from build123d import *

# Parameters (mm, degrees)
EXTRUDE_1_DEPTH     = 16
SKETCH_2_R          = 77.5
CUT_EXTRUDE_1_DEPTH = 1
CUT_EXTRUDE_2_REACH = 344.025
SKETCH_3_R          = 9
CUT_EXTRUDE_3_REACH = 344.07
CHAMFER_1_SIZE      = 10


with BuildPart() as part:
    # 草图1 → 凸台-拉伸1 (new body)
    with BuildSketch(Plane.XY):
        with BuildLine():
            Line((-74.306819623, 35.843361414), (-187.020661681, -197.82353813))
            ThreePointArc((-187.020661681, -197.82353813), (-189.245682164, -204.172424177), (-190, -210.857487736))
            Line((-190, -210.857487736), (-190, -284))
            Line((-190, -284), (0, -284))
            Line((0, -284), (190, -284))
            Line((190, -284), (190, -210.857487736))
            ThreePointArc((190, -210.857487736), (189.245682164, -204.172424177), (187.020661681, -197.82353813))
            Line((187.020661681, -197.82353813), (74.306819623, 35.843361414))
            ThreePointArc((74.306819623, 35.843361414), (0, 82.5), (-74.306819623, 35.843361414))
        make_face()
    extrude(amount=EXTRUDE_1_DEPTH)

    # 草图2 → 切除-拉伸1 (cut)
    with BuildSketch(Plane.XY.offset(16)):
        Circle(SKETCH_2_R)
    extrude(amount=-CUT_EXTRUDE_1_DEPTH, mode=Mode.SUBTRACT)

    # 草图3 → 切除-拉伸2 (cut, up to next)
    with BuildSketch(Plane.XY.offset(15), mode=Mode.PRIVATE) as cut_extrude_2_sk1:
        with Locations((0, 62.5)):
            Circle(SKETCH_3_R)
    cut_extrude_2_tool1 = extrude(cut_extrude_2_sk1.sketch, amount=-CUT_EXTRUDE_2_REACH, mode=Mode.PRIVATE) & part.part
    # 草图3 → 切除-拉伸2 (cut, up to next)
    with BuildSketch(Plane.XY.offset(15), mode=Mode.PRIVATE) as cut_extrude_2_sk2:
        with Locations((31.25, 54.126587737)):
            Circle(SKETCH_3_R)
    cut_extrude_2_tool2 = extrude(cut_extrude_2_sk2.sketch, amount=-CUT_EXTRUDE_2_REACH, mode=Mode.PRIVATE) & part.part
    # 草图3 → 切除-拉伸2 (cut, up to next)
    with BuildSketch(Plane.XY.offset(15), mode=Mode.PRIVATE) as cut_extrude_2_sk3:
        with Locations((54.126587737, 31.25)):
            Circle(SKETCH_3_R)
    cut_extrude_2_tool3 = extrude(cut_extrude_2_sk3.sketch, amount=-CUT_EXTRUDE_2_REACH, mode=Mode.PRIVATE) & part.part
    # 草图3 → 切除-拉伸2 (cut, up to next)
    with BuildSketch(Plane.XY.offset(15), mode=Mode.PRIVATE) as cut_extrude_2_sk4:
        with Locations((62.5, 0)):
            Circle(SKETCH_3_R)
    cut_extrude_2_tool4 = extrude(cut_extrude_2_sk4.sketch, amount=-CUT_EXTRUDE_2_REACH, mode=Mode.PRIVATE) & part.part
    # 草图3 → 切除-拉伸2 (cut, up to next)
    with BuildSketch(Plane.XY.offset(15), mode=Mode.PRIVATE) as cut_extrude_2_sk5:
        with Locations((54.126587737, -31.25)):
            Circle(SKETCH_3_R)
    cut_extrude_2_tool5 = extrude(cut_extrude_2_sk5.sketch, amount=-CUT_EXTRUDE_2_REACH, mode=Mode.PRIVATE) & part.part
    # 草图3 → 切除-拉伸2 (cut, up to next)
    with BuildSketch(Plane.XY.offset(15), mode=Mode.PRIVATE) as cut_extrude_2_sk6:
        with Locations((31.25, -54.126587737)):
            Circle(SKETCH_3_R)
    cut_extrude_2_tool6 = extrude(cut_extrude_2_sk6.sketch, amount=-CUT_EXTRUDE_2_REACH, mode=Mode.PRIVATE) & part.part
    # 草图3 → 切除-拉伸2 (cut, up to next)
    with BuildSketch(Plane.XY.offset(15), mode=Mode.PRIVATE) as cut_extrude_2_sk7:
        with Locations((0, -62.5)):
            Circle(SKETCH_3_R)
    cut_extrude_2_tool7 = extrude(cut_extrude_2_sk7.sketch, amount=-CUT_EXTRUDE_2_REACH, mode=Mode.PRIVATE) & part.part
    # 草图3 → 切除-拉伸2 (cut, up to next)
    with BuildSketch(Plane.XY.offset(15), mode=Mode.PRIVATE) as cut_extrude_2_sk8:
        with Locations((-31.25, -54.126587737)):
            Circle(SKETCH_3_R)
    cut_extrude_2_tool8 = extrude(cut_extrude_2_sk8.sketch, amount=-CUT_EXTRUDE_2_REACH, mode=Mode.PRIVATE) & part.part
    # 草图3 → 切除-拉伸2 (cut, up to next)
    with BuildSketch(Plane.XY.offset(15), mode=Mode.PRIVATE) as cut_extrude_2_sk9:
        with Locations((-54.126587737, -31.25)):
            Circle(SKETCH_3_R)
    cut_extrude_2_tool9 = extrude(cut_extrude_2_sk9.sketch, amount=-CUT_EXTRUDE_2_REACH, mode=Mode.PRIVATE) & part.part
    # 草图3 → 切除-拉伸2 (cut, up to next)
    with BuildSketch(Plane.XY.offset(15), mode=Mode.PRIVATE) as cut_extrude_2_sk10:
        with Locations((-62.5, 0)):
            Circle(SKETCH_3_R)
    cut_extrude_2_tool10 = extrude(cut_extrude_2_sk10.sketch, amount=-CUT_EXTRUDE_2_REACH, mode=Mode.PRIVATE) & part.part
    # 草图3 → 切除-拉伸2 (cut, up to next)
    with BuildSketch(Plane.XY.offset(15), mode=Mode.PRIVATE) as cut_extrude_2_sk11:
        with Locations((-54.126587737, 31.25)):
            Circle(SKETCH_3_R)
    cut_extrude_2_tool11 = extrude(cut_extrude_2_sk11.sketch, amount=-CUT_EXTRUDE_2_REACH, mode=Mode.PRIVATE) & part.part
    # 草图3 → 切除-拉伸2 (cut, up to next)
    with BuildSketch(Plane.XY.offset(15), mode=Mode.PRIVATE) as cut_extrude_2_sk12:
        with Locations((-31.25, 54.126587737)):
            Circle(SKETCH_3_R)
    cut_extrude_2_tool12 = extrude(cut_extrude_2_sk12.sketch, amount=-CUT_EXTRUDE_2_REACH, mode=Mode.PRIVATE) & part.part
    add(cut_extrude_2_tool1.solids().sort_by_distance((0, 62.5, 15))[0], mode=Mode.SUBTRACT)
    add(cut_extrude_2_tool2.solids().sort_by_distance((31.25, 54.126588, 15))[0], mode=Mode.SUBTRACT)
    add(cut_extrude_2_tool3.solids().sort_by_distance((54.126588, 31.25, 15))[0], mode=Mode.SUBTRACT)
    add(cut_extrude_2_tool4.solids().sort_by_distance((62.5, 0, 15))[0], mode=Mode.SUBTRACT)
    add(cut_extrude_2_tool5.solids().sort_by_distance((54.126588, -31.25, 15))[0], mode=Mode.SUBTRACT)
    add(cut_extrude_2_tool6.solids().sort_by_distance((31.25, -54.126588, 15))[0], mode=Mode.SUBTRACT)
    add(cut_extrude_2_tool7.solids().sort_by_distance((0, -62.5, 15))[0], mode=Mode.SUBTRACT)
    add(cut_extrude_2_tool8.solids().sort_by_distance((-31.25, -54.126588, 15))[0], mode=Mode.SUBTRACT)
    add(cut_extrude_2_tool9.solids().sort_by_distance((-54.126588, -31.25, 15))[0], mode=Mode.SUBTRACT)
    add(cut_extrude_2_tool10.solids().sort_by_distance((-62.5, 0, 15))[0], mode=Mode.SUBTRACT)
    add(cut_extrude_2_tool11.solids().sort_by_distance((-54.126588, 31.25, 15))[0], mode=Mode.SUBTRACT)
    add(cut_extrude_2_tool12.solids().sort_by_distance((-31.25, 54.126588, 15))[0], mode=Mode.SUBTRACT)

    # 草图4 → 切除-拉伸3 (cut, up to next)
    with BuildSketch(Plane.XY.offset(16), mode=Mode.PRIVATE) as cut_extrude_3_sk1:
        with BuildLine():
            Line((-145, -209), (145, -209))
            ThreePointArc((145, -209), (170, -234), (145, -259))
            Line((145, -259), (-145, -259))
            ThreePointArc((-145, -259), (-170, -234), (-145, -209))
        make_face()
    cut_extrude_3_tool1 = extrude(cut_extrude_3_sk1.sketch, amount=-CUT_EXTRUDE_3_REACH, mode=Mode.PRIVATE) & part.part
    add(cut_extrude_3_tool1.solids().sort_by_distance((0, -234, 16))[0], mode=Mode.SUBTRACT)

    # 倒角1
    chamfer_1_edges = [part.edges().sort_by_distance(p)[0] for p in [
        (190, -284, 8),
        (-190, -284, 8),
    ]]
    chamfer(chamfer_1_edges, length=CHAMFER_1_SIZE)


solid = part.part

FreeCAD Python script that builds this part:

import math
import FreeCAD as App
import Part
import Sketcher

V = App.Vector
Q = App.Units.Quantity


def edges_at(feature, points):
    """Names of the edges that pass closest to the given points."""
    edges = feature.Shape.Edges
    near = lambda p: min(range(len(edges)), key=lambda i: edges[i].distToShape(Part.Vertex(*p))[0])
    return sorted({f"Edge{near(p) + 1}" for p in points})

doc = App.newDocument("Part")
body = doc.addObject("PartDesign::Body", "Body")

sketch1 = body.newObject("Sketcher::SketchObject", "Sketch")
sketch1.AttachmentSupport = (doc.getObject("XY_Plane"), [""])
sketch1.MapMode = "FlatFace"
sketch1.addGeometry(Part.LineSegment(V(-74, 36, 0), V(-187, -198, 0)), False)
sketch1.addGeometry(Part.ArcOfCircle(Part.Circle(V(-160, -211, 0), V(0, 0, 1), 30), math.radians(154), math.radians(180)), False)
sketch1.addGeometry(Part.LineSegment(V(-190, -211, 0), V(-190, -284, 0)), False)
sketch1.addGeometry(Part.LineSegment(V(-190, -284, 0), V(190, -284, 0)), False)
sketch1.addGeometry(Part.LineSegment(V(190, -284, 0), V(190, -211, 0)), False)
sketch1.addGeometry(Part.ArcOfCircle(Part.Circle(V(160, -211, 0), V(0, 0, 1), 30), math.radians(0), math.radians(26)), False)
sketch1.addGeometry(Part.LineSegment(V(187, -198, 0), V(74, 36, 0)), False)
sketch1.addGeometry(Part.ArcOfCircle(Part.Circle(V(0, 0, 0), V(0, 0, 1), 82), math.radians(26), math.radians(154)), False)
sketch1.addConstraint(Sketcher.Constraint("Tangent", 0, 2, 1, 1))
sketch1.addConstraint(Sketcher.Constraint("Tangent", 1, 2, 2, 1))
sketch1.addConstraint(Sketcher.Constraint("Coincident", 2, 2, 3, 1))
sketch1.addConstraint(Sketcher.Constraint("Coincident", 3, 2, 4, 1))
sketch1.addConstraint(Sketcher.Constraint("Tangent", 4, 2, 5, 1))
sketch1.addConstraint(Sketcher.Constraint("Tangent", 5, 2, 6, 1))
sketch1.addConstraint(Sketcher.Constraint("Tangent", 6, 2, 7, 1))
sketch1.addConstraint(Sketcher.Constraint("Tangent", 7, 2, 0, 1))
sketch1.addConstraint(Sketcher.Constraint("Vertical", 2))
sketch1.addConstraint(Sketcher.Constraint("Horizontal", 3))
sketch1.addConstraint(Sketcher.Constraint("Vertical", 4))
sketch1.addConstraint(Sketcher.Constraint("Coincident", 7, 3, -1, 1))
sketch1.addConstraint(Sketcher.Constraint("Equal", 1, 5))
sketch1.addConstraint(Sketcher.Constraint("Symmetric", 1, 3, 5, 3, -2))
sketch1.addConstraint(Sketcher.Constraint("Radius", 1, Q("30 mm")))
sketch1.addConstraint(Sketcher.Constraint("Radius", 7, Q("82.5 mm")))
sketch1.addConstraint(Sketcher.Constraint("DistanceX", 3, 1, 3, 2, Q("380 mm")))
sketch1.addConstraint(Sketcher.Constraint("DistanceY", 2, 2, -1, 1, Q("284 mm")))
sketch1.addConstraint(Sketcher.Constraint("DistanceY", 5, 2, 6, 2, Q("233.6669 mm")))
pad1 = body.newObject("PartDesign::Pad", "Pad")
pad1.Profile = sketch1
pad1.Length = 16

sketch2 = body.newObject("Sketcher::SketchObject", "Sketch001")
sketch2.AttachmentSupport = (doc.getObject("XY_Plane"), [""])
sketch2.MapMode = "FlatFace"
sketch2.AttachmentOffset = App.Placement(V(0, 0, 16), App.Rotation())
sketch2.addGeometry(Part.Circle(V(0, 0, 0), V(0, 0, 1), 78), False)
sketch2.addConstraint(Sketcher.Constraint("Coincident", 0, 3, -1, 1))
sketch2.addConstraint(Sketcher.Constraint("Diameter", 0, Q("155 mm")))
pocket1 = body.newObject("PartDesign::Pocket", "Pocket")
pocket1.Profile = sketch2
pocket1.Length = 1

sketch3 = body.newObject("Sketcher::SketchObject", "Sketch002")
sketch3.AttachmentSupport = (doc.getObject("XY_Plane"), [""])
sketch3.MapMode = "FlatFace"
sketch3.AttachmentOffset = App.Placement(V(0, 0, 15), App.Rotation())
sketch3.addGeometry(Part.Circle(V(0, 62, 0), V(0, 0, 1), 9), False)
sketch3.addConstraint(Sketcher.Constraint("PointOnObject", 0, 3, -2))
sketch3.addConstraint(Sketcher.Constraint("Diameter", 0, Q("18 mm")))
sketch3.addConstraint(Sketcher.Constraint("DistanceY", -1, 1, 0, 3, Q("62.5 mm")))
pocket2 = body.newObject("PartDesign::Pocket", "Pocket001")
pocket2.Profile = sketch3
pocket2.Type = "UpToFirst"

sketch4 = body.newObject("Sketcher::SketchObject", "Sketch003")
sketch4.AttachmentSupport = (doc.getObject("XY_Plane"), [""])
sketch4.MapMode = "FlatFace"
sketch4.AttachmentOffset = App.Placement(V(0, 0, 15), App.Rotation())
sketch4.addGeometry(Part.Circle(V(31, 54, 0), V(0, 0, 1), 9), False)
sketch4.addConstraint(Sketcher.Constraint("Diameter", 0, Q("18 mm")))
sketch4.addConstraint(Sketcher.Constraint("DistanceX", -1, 1, 0, 3, Q("31.25 mm")))
sketch4.addConstraint(Sketcher.Constraint("DistanceY", -1, 1, 0, 3, Q("54.126588 mm")))
pocket3 = body.newObject("PartDesign::Pocket", "Pocket002")
pocket3.Profile = sketch4
pocket3.Type = "UpToFirst"

sketch5 = body.newObject("Sketcher::SketchObject", "Sketch004")
sketch5.AttachmentSupport = (doc.getObject("XY_Plane"), [""])
sketch5.MapMode = "FlatFace"
sketch5.AttachmentOffset = App.Placement(V(0, 0, 15), App.Rotation())
sketch5.addGeometry(Part.Circle(V(54, 31, 0), V(0, 0, 1), 9), False)
sketch5.addConstraint(Sketcher.Constraint("Diameter", 0, Q("18 mm")))
sketch5.addConstraint(Sketcher.Constraint("DistanceY", -1, 1, 0, 3, Q("31.25 mm")))
sketch5.addConstraint(Sketcher.Constraint("DistanceX", -1, 1, 0, 3, Q("54.126588 mm")))
pocket4 = body.newObject("PartDesign::Pocket", "Pocket003")
pocket4.Profile = sketch5
pocket4.Type = "UpToFirst"

sketch6 = body.newObject("Sketcher::SketchObject", "Sketch005")
sketch6.AttachmentSupport = (doc.getObject("XY_Plane"), [""])
sketch6.MapMode = "FlatFace"
sketch6.AttachmentOffset = App.Placement(V(0, 0, 15), App.Rotation())
sketch6.addGeometry(Part.Circle(V(62, 0, 0), V(0, 0, 1), 9), False)
sketch6.addConstraint(Sketcher.Constraint("PointOnObject", 0, 3, -1))
sketch6.addConstraint(Sketcher.Constraint("Diameter", 0, Q("18 mm")))
sketch6.addConstraint(Sketcher.Constraint("DistanceX", -1, 1, 0, 3, Q("62.5 mm")))
pocket5 = body.newObject("PartDesign::Pocket", "Pocket004")
pocket5.Profile = sketch6
pocket5.Type = "UpToFirst"

sketch7 = body.newObject("Sketcher::SketchObject", "Sketch006")
sketch7.AttachmentSupport = (doc.getObject("XY_Plane"), [""])
sketch7.MapMode = "FlatFace"
sketch7.AttachmentOffset = App.Placement(V(0, 0, 15), App.Rotation())
sketch7.addGeometry(Part.Circle(V(54, -31, 0), V(0, 0, 1), 9), False)
sketch7.addConstraint(Sketcher.Constraint("Diameter", 0, Q("18 mm")))
sketch7.addConstraint(Sketcher.Constraint("DistanceY", 0, 3, -1, 1, Q("31.25 mm")))
sketch7.addConstraint(Sketcher.Constraint("DistanceX", -1, 1, 0, 3, Q("54.126588 mm")))
pocket6 = body.newObject("PartDesign::Pocket", "Pocket005")
pocket6.Profile = sketch7
pocket6.Type = "UpToFirst"

sketch8 = body.newObject("Sketcher::SketchObject", "Sketch007")
sketch8.AttachmentSupport = (doc.getObject("XY_Plane"), [""])
sketch8.MapMode = "FlatFace"
sketch8.AttachmentOffset = App.Placement(V(0, 0, 15), App.Rotation())
sketch8.addGeometry(Part.Circle(V(31, -54, 0), V(0, 0, 1), 9), False)
sketch8.addConstraint(Sketcher.Constraint("Diameter", 0, Q("18 mm")))
sketch8.addConstraint(Sketcher.Constraint("DistanceX", -1, 1, 0, 3, Q("31.25 mm")))
sketch8.addConstraint(Sketcher.Constraint("DistanceY", 0, 3, -1, 1, Q("54.126588 mm")))
pocket7 = body.newObject("PartDesign::Pocket", "Pocket006")
pocket7.Profile = sketch8
pocket7.Type = "UpToFirst"

sketch9 = body.newObject("Sketcher::SketchObject", "Sketch008")
sketch9.AttachmentSupport = (doc.getObject("XY_Plane"), [""])
sketch9.MapMode = "FlatFace"
sketch9.AttachmentOffset = App.Placement(V(0, 0, 15), App.Rotation())
sketch9.addGeometry(Part.Circle(V(0, -62, 0), V(0, 0, 1), 9), False)
sketch9.addConstraint(Sketcher.Constraint("PointOnObject", 0, 3, -2))
sketch9.addConstraint(Sketcher.Constraint("Diameter", 0, Q("18 mm")))
sketch9.addConstraint(Sketcher.Constraint("DistanceY", 0, 3, -1, 1, Q("62.5 mm")))
pocket8 = body.newObject("PartDesign::Pocket", "Pocket007")
pocket8.Profile = sketch9
pocket8.Type = "UpToFirst"

sketch10 = body.newObject("Sketcher::SketchObject", "Sketch009")
sketch10.AttachmentSupport = (doc.getObject("XY_Plane"), [""])
sketch10.MapMode = "FlatFace"
sketch10.AttachmentOffset = App.Placement(V(0, 0, 15), App.Rotation())
sketch10.addGeometry(Part.Circle(V(-31, -54, 0), V(0, 0, 1), 9), False)
sketch10.addConstraint(Sketcher.Constraint("Diameter", 0, Q("18 mm")))
sketch10.addConstraint(Sketcher.Constraint("DistanceX", 0, 3, -1, 1, Q("31.25 mm")))
sketch10.addConstraint(Sketcher.Constraint("DistanceY", 0, 3, -1, 1, Q("54.126588 mm")))
pocket9 = body.newObject("PartDesign::Pocket", "Pocket008")
pocket9.Profile = sketch10
pocket9.Type = "UpToFirst"

sketch11 = body.newObject("Sketcher::SketchObject", "Sketch010")
sketch11.AttachmentSupport = (doc.getObject("XY_Plane"), [""])
sketch11.MapMode = "FlatFace"
sketch11.AttachmentOffset = App.Placement(V(0, 0, 15), App.Rotation())
sketch11.addGeometry(Part.Circle(V(-54, -31, 0), V(0, 0, 1), 9), False)
sketch11.addConstraint(Sketcher.Constraint("Diameter", 0, Q("18 mm")))
sketch11.addConstraint(Sketcher.Constraint("DistanceY", 0, 3, -1, 1, Q("31.25 mm")))
sketch11.addConstraint(Sketcher.Constraint("DistanceX", 0, 3, -1, 1, Q("54.126588 mm")))
pocket10 = body.newObject("PartDesign::Pocket", "Pocket009")
pocket10.Profile = sketch11
pocket10.Type = "UpToFirst"

sketch12 = body.newObject("Sketcher::SketchObject", "Sketch011")
sketch12.AttachmentSupport = (doc.getObject("XY_Plane"), [""])
sketch12.MapMode = "FlatFace"
sketch12.AttachmentOffset = App.Placement(V(0, 0, 15), App.Rotation())
sketch12.addGeometry(Part.Circle(V(-62, 0, 0), V(0, 0, 1), 9), False)
sketch12.addConstraint(Sketcher.Constraint("PointOnObject", 0, 3, -1))
sketch12.addConstraint(Sketcher.Constraint("Diameter", 0, Q("18 mm")))
sketch12.addConstraint(Sketcher.Constraint("DistanceX", 0, 3, -1, 1, Q("62.5 mm")))
pocket11 = body.newObject("PartDesign::Pocket", "Pocket010")
pocket11.Profile = sketch12
pocket11.Type = "UpToFirst"

sketch13 = body.newObject("Sketcher::SketchObject", "Sketch012")
sketch13.AttachmentSupport = (doc.getObject("XY_Plane"), [""])
sketch13.MapMode = "FlatFace"
sketch13.AttachmentOffset = App.Placement(V(0, 0, 15), App.Rotation())
sketch13.addGeometry(Part.Circle(V(-54, 31, 0), V(0, 0, 1), 9), False)
sketch13.addConstraint(Sketcher.Constraint("Diameter", 0, Q("18 mm")))
sketch13.addConstraint(Sketcher.Constraint("DistanceY", -1, 1, 0, 3, Q("31.25 mm")))
sketch13.addConstraint(Sketcher.Constraint("DistanceX", 0, 3, -1, 1, Q("54.126588 mm")))
pocket12 = body.newObject("PartDesign::Pocket", "Pocket011")
pocket12.Profile = sketch13
pocket12.Type = "UpToFirst"

sketch14 = body.newObject("Sketcher::SketchObject", "Sketch013")
sketch14.AttachmentSupport = (doc.getObject("XY_Plane"), [""])
sketch14.MapMode = "FlatFace"
sketch14.AttachmentOffset = App.Placement(V(0, 0, 15), App.Rotation())
sketch14.addGeometry(Part.Circle(V(-31, 54, 0), V(0, 0, 1), 9), False)
sketch14.addConstraint(Sketcher.Constraint("Diameter", 0, Q("18 mm")))
sketch14.addConstraint(Sketcher.Constraint("DistanceX", 0, 3, -1, 1, Q("31.25 mm")))
sketch14.addConstraint(Sketcher.Constraint("DistanceY", -1, 1, 0, 3, Q("54.126588 mm")))
pocket13 = body.newObject("PartDesign::Pocket", "Pocket012")
pocket13.Profile = sketch14
pocket13.Type = "UpToFirst"

sketch15 = body.newObject("Sketcher::SketchObject", "Sketch014")
sketch15.AttachmentSupport = (doc.getObject("XY_Plane"), [""])
sketch15.MapMode = "FlatFace"
sketch15.AttachmentOffset = App.Placement(V(0, 0, 16), App.Rotation())
sketch15.addGeometry(Part.LineSegment(V(145, -209, 0), V(-145, -209, 0)), False)
sketch15.addGeometry(Part.ArcOfCircle(Part.Circle(V(-145, -234, 0), V(0, 0, 1), 25), math.radians(90), math.radians(270)), False)
sketch15.addGeometry(Part.LineSegment(V(-145, -259, 0), V(145, -259, 0)), False)
sketch15.addGeometry(Part.ArcOfCircle(Part.Circle(V(145, -234, 0), V(0, 0, 1), 25), math.radians(-90), math.radians(90)), False)
sketch15.addConstraint(Sketcher.Constraint("Tangent", 0, 2, 1, 1))
sketch15.addConstraint(Sketcher.Constraint("Tangent", 1, 2, 2, 1))
sketch15.addConstraint(Sketcher.Constraint("Tangent", 2, 2, 3, 1))
sketch15.addConstraint(Sketcher.Constraint("Tangent", 3, 2, 0, 1))
sketch15.addConstraint(Sketcher.Constraint("Horizontal", 0))
sketch15.addConstraint(Sketcher.Constraint("Horizontal", 2))
sketch15.addConstraint(Sketcher.Constraint("Radius", 1, Q("25 mm")))
sketch15.addConstraint(Sketcher.Constraint("DistanceX", 0, 2, 0, 1, Q("290 mm")))
sketch15.addConstraint(Sketcher.Constraint("DistanceX", 1, 3, -1, 1, Q("145 mm")))
sketch15.addConstraint(Sketcher.Constraint("DistanceY", 1, 3, -1, 1, Q("234 mm")))
pocket14 = body.newObject("PartDesign::Pocket", "Pocket013")
pocket14.Profile = sketch15
pocket14.Type = "UpToFirst"
doc.recompute()

chamfer = body.newObject("PartDesign::Chamfer", "Chamfer")
chamfer.Base = (pocket14, edges_at(pocket14, [(190, -284, 8), (-190, -284, 8)]))
chamfer.Size = 10

doc.recompute()
